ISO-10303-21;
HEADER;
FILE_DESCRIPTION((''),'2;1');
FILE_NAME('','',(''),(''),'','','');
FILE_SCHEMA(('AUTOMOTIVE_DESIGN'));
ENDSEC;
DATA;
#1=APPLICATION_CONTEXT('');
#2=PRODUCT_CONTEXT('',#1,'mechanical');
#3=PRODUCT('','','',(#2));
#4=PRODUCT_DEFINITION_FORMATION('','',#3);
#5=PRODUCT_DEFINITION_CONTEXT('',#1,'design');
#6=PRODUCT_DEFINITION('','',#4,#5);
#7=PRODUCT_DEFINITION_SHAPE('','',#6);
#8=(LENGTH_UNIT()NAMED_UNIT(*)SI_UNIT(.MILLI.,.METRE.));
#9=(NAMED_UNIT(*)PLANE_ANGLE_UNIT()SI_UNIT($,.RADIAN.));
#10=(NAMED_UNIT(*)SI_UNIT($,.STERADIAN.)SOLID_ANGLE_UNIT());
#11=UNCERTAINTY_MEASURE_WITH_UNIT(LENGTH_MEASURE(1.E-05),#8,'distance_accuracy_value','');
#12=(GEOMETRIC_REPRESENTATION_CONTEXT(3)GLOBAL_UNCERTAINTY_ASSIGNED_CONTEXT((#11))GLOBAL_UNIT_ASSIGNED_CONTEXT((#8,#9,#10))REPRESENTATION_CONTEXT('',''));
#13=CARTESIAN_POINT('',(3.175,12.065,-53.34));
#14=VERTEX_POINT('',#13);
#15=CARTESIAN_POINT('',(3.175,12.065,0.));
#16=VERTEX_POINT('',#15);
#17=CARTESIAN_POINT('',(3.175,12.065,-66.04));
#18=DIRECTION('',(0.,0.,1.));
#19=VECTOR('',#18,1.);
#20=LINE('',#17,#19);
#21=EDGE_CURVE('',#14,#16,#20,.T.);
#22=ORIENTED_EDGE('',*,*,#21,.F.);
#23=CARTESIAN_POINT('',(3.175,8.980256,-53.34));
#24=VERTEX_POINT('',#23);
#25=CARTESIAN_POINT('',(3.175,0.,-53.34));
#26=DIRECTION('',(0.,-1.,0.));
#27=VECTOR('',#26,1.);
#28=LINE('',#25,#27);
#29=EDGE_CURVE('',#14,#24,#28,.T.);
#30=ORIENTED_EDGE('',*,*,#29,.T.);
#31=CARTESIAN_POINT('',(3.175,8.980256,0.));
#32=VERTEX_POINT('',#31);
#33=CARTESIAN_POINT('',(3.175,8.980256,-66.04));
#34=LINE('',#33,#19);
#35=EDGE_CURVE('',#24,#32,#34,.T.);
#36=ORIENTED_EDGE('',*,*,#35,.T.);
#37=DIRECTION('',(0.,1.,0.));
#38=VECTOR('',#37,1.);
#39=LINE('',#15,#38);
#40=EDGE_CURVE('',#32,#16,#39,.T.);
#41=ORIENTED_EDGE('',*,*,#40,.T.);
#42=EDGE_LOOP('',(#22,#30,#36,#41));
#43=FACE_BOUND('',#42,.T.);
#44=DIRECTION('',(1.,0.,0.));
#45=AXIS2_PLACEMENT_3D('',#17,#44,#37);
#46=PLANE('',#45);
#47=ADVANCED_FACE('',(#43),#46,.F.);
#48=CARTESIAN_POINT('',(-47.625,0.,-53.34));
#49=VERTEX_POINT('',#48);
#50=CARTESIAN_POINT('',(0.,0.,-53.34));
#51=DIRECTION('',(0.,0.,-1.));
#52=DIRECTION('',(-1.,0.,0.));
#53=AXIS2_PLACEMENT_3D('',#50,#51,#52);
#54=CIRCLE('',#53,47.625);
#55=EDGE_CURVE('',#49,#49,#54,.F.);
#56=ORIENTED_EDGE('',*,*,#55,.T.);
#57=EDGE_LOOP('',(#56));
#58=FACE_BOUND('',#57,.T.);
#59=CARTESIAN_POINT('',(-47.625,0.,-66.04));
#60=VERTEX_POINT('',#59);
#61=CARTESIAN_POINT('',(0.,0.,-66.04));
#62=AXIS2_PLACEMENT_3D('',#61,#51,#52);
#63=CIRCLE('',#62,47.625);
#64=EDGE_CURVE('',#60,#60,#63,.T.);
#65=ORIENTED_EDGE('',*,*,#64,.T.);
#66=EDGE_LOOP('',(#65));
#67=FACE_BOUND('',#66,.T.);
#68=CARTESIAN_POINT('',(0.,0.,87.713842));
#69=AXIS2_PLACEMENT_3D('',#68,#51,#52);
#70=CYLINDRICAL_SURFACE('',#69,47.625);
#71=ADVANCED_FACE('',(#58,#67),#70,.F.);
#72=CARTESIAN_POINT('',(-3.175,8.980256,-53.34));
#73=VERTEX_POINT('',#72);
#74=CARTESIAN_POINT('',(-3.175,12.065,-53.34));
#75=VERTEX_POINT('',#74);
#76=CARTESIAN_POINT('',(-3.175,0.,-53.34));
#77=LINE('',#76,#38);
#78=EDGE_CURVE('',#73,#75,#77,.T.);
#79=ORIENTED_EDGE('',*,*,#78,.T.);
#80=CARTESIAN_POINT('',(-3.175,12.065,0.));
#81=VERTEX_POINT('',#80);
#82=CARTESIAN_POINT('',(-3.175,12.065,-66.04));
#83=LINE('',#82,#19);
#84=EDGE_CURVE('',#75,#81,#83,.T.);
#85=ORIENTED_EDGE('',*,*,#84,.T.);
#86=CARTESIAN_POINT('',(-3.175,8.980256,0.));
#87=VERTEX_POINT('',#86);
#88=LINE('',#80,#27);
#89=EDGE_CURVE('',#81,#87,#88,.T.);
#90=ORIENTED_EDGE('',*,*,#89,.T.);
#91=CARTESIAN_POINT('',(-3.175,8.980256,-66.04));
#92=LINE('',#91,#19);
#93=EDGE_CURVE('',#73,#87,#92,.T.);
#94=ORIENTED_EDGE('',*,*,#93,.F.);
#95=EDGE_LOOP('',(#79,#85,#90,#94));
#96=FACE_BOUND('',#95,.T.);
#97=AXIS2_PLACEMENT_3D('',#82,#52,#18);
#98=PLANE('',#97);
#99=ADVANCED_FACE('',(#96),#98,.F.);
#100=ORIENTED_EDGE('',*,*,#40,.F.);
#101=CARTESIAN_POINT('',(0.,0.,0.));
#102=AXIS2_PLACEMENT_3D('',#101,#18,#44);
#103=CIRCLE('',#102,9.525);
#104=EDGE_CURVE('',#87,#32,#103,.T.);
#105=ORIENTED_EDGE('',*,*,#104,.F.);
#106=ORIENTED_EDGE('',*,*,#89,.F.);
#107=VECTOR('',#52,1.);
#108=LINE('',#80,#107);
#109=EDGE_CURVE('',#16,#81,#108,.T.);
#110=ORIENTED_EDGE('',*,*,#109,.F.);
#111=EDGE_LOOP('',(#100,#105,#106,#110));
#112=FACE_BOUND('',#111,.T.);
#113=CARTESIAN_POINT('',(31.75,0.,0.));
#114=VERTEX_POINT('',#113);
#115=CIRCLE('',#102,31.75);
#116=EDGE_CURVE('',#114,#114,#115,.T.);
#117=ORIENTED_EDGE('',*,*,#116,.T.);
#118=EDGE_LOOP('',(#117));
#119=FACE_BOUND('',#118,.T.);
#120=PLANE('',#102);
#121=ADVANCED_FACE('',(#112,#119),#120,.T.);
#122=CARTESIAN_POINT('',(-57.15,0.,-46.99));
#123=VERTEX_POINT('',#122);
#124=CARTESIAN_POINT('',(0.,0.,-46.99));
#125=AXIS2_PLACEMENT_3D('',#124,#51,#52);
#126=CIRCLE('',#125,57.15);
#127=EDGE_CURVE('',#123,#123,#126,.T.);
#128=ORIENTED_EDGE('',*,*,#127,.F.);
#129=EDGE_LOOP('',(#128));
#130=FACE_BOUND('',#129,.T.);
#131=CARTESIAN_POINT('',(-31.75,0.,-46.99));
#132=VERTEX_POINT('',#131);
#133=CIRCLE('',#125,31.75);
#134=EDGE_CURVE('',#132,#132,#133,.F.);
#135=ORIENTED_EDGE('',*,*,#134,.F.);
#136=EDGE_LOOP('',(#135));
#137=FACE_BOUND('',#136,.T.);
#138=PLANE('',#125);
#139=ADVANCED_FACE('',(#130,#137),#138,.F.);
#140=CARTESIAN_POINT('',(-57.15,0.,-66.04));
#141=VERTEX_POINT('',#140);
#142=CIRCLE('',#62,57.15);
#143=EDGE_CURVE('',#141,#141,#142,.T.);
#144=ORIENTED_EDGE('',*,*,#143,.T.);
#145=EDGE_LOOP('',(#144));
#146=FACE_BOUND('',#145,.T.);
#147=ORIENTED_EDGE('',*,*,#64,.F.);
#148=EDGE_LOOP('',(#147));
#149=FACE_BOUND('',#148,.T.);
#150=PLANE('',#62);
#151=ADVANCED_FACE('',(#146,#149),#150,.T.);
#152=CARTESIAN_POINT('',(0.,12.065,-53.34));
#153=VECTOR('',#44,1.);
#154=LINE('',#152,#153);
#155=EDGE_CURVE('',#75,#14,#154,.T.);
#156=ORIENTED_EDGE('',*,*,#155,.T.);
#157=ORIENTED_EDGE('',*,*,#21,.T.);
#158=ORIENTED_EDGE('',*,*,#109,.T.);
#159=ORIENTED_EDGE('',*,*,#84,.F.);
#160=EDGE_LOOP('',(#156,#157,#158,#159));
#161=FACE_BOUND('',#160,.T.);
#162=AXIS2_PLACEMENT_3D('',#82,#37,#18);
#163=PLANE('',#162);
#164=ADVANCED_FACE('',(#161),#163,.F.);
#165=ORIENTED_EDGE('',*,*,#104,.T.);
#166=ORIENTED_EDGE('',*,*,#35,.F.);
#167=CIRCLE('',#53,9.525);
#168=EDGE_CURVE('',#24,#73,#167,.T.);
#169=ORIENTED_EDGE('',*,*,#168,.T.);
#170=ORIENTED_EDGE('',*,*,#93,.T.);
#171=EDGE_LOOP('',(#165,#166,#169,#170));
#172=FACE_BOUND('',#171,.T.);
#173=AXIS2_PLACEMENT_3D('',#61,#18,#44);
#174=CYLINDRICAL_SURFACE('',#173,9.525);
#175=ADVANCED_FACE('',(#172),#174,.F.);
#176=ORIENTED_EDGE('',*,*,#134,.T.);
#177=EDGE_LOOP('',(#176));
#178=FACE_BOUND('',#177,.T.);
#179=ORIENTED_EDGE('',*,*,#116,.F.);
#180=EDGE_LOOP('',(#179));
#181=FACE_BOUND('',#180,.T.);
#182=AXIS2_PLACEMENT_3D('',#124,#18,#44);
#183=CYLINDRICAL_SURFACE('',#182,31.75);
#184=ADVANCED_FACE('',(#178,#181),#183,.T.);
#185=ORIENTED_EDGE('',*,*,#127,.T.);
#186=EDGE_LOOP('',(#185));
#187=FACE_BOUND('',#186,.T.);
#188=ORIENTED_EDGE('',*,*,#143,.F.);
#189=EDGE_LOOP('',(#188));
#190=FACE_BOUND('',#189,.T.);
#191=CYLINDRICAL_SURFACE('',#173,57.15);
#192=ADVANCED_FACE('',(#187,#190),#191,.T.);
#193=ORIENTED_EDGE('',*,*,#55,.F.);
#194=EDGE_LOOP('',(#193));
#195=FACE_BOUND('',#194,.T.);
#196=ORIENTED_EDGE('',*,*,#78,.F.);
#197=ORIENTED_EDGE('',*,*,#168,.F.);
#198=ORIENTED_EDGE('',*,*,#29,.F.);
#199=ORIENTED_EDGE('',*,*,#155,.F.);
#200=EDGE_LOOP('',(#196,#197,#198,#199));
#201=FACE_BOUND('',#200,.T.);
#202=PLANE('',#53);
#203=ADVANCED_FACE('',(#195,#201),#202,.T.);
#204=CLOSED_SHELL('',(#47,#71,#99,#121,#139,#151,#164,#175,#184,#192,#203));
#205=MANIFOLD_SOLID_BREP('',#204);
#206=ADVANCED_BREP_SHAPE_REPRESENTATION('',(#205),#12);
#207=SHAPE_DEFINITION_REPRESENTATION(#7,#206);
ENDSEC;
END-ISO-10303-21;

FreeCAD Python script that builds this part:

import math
import FreeCAD as App
import Part
import Sketcher

V = App.Vector
Q = App.Units.Quantity

doc = App.newDocument("Part")
body = doc.addObject("PartDesign::Body", "Body")

sketch1 = body.newObject("Sketcher::SketchObject", "Sketch")
sketch1.AttachmentSupport = (doc.getObject("XY_Plane"), [""])
sketch1.MapMode = "FlatFace"
sketch1.addGeometry(Part.Circle(V(0, 0, 0), V(0, 0, 1), 31.75), False)
sketch1.addConstraint(Sketcher.Constraint("Coincident", 0, 3, -1, 1))
sketch1.addConstraint(Sketcher.Constraint("Diameter", 0, Q("2.5 in")))
pad1 = body.newObject("PartDesign::Pad", "Pad")
pad1.Profile = sketch1
pad1.Length = Q("1.85 in")
pad1.Reversed = True

sketch2 = body.newObject("Sketcher::SketchObject", "Sketch001")
sketch2.AttachmentSupport = (doc.getObject("XY_Plane"), [""])
sketch2.MapMode = "FlatFace"
sketch2.AttachmentOffset = App.Placement(V(0, 0, -1.85 * 25.4), App.Rotation())
sketch2.addGeometry(Part.Circle(V(0, 0, 0), V(0, 0, 1), 57.15), False)
sketch2.addConstraint(Sketcher.Constraint("Coincident", 0, 3, -1, 1))
sketch2.addConstraint(Sketcher.Constraint("Diameter", 0, Q("4.5 in")))
pad2 = body.newObject("PartDesign::Pad", "Pad001")
pad2.Profile = sketch2
pad2.Length = Q("0.75 in")
pad2.Reversed = True

sketch3 = body.newObject("Sketcher::SketchObject", "Sketch002")
sketch3.AttachmentSupport = (doc.getObject("XY_Plane"), [""])
sketch3.MapMode = "FlatFace"
sketch3.AttachmentOffset = App.Placement(V(0, 0, -2.6 * 25.4), App.Rotation())
sketch3.addGeometry(Part.Circle(V(0, 0, 0), V(0, 0, 1), 47.625), False)
sketch3.addConstraint(Sketcher.Constraint("Coincident", 0, 3, -1, 1))
sketch3.addConstraint(Sketcher.Constraint("Diameter", 0, Q("3.75 in")))
pocket1 = body.newObject("PartDesign::Pocket", "Pocket")
pocket1.Profile = sketch3
pocket1.Length = Q("0.5 in")
pocket1.Reversed = True

sketch4 = body.newObject("Sketcher::SketchObject", "Sketch003")
sketch4.AttachmentSupport = (doc.getObject("XY_Plane"), [""])
sketch4.MapMode = "FlatFace"
sketch4.addGeometry(Part.LineSegment(V(3.175, 12.065, 0), V(-3.175, 12.065, 0)), False)
sketch4.addGeometry(Part.LineSegment(V(-3.175, 12.065, 0), V(-3.175, 8.980256, 0)), False)
sketch4.addGeometry(Part.ArcOfCircle(Part.Circle(V(0, 0, 0), V(0, 0, 1), 9.525), math.radians(109.471221), math.radians(430.528779)), False)
sketch4.addGeometry(Part.LineSegment(V(3.175, 8.980256, 0), V(3.175, 12.065, 0)), False)
sketch4.addConstraint(Sketcher.Constraint("Coincident", 0, 2, 1, 1))
sketch4.addConstraint(Sketcher.Constraint("Coincident", 1, 2, 2, 1))
sketch4.addConstraint(Sketcher.Constraint("Coincident", 2, 2, 3, 1))
sketch4.addConstraint(Sketcher.Constraint("Coincident", 3, 2, 0, 1))
sketch4.addConstraint(Sketcher.Constraint("Horizontal", 0))
sketch4.addConstraint(Sketcher.Constraint("Vertical", 1))
sketch4.addConstraint(Sketcher.Constraint("Vertical", 3))
sketch4.addConstraint(Sketcher.Constraint("Coincident", 2, 3, -1, 1))
sketch4.addConstraint(Sketcher.Constraint("Horizontal", 1, 2, 2, 2))
sketch4.addConstraint(Sketcher.Constraint("Radius", 2, Q("0.375 in")))
sketch4.addConstraint(Sketcher.Constraint("DistanceX", 0, 2, 0, 1, Q("0.25 in")))
sketch4.addConstraint(Sketcher.Constraint("DistanceY", -1, 1, 0, 2, Q("0.475 in")))
pocket2 = body.newObject("PartDesign::Pocket", "Pocket001")
pocket2.Profile = sketch4
pocket2.Type = "ThroughAll"

doc.recompute()
